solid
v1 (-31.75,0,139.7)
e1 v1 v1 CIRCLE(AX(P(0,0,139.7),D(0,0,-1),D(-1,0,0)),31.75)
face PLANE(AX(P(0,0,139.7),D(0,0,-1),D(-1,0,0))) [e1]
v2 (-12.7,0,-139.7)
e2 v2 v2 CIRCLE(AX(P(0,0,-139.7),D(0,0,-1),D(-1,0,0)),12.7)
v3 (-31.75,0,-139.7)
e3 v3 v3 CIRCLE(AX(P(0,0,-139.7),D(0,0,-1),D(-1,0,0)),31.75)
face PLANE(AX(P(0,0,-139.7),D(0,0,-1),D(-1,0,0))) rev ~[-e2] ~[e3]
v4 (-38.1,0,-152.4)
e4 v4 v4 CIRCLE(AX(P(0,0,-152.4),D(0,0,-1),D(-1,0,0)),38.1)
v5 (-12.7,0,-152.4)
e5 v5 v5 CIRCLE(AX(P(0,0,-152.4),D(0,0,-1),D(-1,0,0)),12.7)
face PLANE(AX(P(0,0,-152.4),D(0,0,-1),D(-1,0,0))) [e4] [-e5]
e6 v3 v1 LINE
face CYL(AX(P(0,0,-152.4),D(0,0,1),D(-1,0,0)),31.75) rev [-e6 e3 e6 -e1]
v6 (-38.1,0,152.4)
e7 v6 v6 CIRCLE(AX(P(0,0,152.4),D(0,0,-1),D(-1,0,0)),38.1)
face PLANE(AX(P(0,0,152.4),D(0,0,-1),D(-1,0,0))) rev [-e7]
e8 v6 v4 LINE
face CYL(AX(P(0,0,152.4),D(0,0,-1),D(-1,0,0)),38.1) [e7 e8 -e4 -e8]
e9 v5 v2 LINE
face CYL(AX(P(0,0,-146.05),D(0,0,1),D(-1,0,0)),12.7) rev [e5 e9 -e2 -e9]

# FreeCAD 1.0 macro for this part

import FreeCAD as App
import Part
import Sketcher
from FreeCAD import Vector
Q = App.Units.Quantity


def add_polygon(sketch, points):
    """Adds a closed chain of lines whose ends are joined by coincident constraints."""
    first, n = sketch.GeometryCount, len(points)
    for a, b in zip(points, points[1:] + points[:1]):
        sketch.addGeometry(Part.LineSegment(App.Vector(*a, 0), App.Vector(*b, 0)), False)
    for i in range(n):
        sketch.addConstraint(Sketcher.Constraint("Coincident", first + i, 2, first + (i + 1) % n, 1))

doc = App.newDocument("Part")
params = doc.addObject("Spreadsheet::Sheet", "Params")
for row, (alias, value) in enumerate([
    ("sketch1_width", "1 in"),
    ("sketch1_height", "12 in"),
    ("sketch1_height2", "11 in"),
    ("sketch1_width2", "1.5 in"),
    ("sketch1_width3", "1.25 in"),
    ("revolution_angle", "360 deg"),
], start=1):
    params.set(f"A{row}", alias)
    params.set(f"B{row}", "=" + value)
    params.setAlias(f"B{row}", alias)

body = doc.addObject("PartDesign::Body", "Body")

# Sketch on XZ plane
sketch1 = doc.addObject("Sketcher::SketchObject", "Sketch")
body.addObject(sketch1)
sketch1.AttachmentSupport = (doc.XZ_Plane, [""])
sketch1.MapMode = "FlatFace"
add_polygon(sketch1, [(-31.75, 139.7), (0, 139.7), (0, 152.4), (-38.1, 152.4), (-38.1, -152.4), (-12.7, -152.4), (-12.7, -139.7), (-31.75, -139.7)])  # lines 0-7
sketch1.addConstraint([
    Sketcher.Constraint("Horizontal", 0),
    Sketcher.Constraint("Vertical", 1),
    Sketcher.Constraint("Horizontal", 2),
    Sketcher.Constraint("Vertical", 3),
    Sketcher.Constraint("Horizontal", 4),
    Sketcher.Constraint("Vertical", 5),
    Sketcher.Constraint("Horizontal", 6),
    Sketcher.Constraint("Vertical", 7),
    Sketcher.Constraint("PointOnObject", 0, 2, -2),
    Sketcher.Constraint("Equal", 1, 5),
    Sketcher.Constraint("DistanceX", 4, 1, 4, 2, Q("1 in")),
    Sketcher.Constraint("DistanceY", 3, 2, 3, 1, Q("12 in")),
    Sketcher.Constraint("DistanceY", 7, 1, 7, 2, Q("11 in")),
    Sketcher.Constraint("DistanceX", 2, 2, 2, 1, Q("1.5 in")),
    Sketcher.Constraint("DistanceY", -1, 1, 1, 2, Q("6 in")),
    Sketcher.Constraint("DistanceX", 0, 1, 0, 2, Q("1.25 in")),
])
sketch1.setExpression("Constraints[18]", "Params.sketch1_width")
sketch1.setExpression("Constraints[19]", "Params.sketch1_height")
sketch1.setExpression("Constraints[20]", "Params.sketch1_height2")
sketch1.setExpression("Constraints[21]", "Params.sketch1_width2")
sketch1.setExpression("Constraints[23]", "Params.sketch1_width3")
revolution = doc.addObject("PartDesign::Revolution", "Revolution")
body.addObject(revolution)
revolution.Profile = sketch1
revolution.ReferenceAxis = (sketch1, ["V_Axis"])
revolution.setExpression("Angle", "Params.revolution_angle")

doc.recompute()
